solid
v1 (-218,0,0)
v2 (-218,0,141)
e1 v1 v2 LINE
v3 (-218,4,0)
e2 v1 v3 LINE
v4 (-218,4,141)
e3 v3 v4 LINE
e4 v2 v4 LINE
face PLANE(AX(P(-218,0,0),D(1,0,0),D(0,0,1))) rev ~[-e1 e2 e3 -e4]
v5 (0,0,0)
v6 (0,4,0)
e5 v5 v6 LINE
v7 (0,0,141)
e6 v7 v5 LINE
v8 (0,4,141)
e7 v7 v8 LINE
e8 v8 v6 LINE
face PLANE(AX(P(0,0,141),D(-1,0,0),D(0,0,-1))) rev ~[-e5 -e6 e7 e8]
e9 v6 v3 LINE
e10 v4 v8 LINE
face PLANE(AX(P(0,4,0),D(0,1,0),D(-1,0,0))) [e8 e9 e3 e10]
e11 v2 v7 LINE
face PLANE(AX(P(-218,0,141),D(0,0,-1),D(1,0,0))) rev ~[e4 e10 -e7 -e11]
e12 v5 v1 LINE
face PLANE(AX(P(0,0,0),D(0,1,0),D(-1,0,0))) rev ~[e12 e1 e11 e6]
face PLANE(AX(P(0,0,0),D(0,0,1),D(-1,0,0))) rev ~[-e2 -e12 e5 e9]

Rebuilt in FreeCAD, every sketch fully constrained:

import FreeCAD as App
import Part
import Sketcher


def add_polygon(sketch, points):
    """Adds a closed chain of lines whose ends are joined by coincident constraints."""
    first, n = sketch.GeometryCount, len(points)
    for a, b in zip(points, points[1:] + points[:1]):
        sketch.addGeometry(Part.LineSegment(App.Vector(*a, 0), App.Vector(*b, 0)), False)
    for i in range(n):
        sketch.addConstraint(Sketcher.Constraint("Coincident", first + i, 2, first + (i + 1) % n, 1))

doc = App.newDocument("Part")
body = doc.addObject("PartDesign::Body", "Body")

sketch1 = doc.addObject("Sketcher::SketchObject", "Sketch")
body.addObject(sketch1)
sketch1.AttachmentSupport = (doc.XZ_Plane, [""])
sketch1.MapMode = "FlatFace"
add_polygon(sketch1, [(0, 141), (0, 0), (-218, 0), (-218, 141)])
sketch1.addConstraint([
    Sketcher.Constraint("Vertical", 0),
    Sketcher.Constraint("Horizontal", 1),
    Sketcher.Constraint("Vertical", 2),
    Sketcher.Constraint("Horizontal", 3),
    Sketcher.Constraint("Coincident", 0, 2, -1, 1),
    Sketcher.Constraint("DistanceX", 1, 2, 1, 1, 218.0),
    Sketcher.Constraint("DistanceY", 0, 2, 0, 1, 141.0),
])
pad1 = doc.addObject("PartDesign::Pad", "Pad")
body.addObject(pad1)
pad1.Profile = sketch1
pad1.Length = 4
pad1.Reversed = True

doc.recompute()
